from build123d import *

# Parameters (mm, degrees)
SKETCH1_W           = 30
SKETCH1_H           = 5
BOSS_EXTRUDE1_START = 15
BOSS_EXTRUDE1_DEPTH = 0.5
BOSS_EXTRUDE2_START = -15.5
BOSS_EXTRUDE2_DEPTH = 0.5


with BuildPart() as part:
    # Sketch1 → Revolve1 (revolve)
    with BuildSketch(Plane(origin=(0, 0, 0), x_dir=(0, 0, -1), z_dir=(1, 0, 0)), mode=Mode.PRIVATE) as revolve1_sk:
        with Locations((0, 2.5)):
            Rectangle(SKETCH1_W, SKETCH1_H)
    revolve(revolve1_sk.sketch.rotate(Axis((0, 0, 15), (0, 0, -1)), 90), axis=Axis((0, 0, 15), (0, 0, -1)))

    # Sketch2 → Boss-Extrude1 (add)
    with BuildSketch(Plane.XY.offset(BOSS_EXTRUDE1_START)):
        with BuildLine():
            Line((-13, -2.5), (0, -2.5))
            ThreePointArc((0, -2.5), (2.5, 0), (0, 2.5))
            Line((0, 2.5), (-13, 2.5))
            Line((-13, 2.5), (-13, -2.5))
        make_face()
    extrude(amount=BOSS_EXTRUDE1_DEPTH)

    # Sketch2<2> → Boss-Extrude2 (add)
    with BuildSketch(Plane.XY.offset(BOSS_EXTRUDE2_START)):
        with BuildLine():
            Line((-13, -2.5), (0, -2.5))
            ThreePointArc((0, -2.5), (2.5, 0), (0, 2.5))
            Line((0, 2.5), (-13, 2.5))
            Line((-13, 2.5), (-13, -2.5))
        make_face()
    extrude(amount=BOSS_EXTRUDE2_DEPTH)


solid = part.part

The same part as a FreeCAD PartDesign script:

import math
import FreeCAD as App
import Part
import Sketcher

V = App.Vector
Q = App.Units.Quantity


def add_polygon(sketch, points):
    """Adds a closed chain of lines whose ends are joined by coincident constraints."""
    first, n = sketch.GeometryCount, len(points)
    for a, b in zip(points, points[1:] + points[:1]):
        sketch.addGeometry(Part.LineSegment(App.Vector(*a, 0), App.Vector(*b, 0)), False)
    for i in range(n):
        sketch.addConstraint(Sketcher.Constraint("Coincident", first + i, 2, first + (i + 1) % n, 1))

doc = App.newDocument("Part")
body = doc.addObject("PartDesign::Body", "Body")

# Sketch on YZ plane
sketch1 = body.newObject("Sketcher::SketchObject", "Sketch")
sketch1.AttachmentSupport = (doc.getObject("YZ_Plane"), [""])
sketch1.MapMode = "FlatFace"
add_polygon(sketch1, [(5, 15), (0, 15), (0, -15), (5, -15)])  # lines 0-3
sketch1.addConstraint(Sketcher.Constraint("Horizontal", 0))
sketch1.addConstraint(Sketcher.Constraint("Vertical", 1))
sketch1.addConstraint(Sketcher.Constraint("Horizontal", 2))
sketch1.addConstraint(Sketcher.Constraint("Vertical", 3))
sketch1.addConstraint(Sketcher.Constraint("Symmetric", 0, 2, 1, 2, -1, 1))
sketch1.addConstraint(Sketcher.Constraint("DistanceX", 0, 2, 0, 1, Q("5 mm")))
sketch1.addConstraint(Sketcher.Constraint("DistanceY", 1, 2, 1, 1, Q("30 mm")))
revolution = body.newObject("PartDesign::Revolution", "Revolution")
revolution.Profile = sketch1
revolution.ReferenceAxis = (sketch1, ["V_Axis"])
revolution.Angle = 360

# Sketch on XY plane
sketch2 = body.newObject("Sketcher::SketchObject", "Sketch001")
sketch2.AttachmentSupport = (doc.getObject("XY_Plane"), [""])
sketch2.MapMode = "FlatFace"
sketch2.AttachmentOffset = App.Placement(V(0, 0, 15), App.Rotation())
sketch2.addGeometry(Part.LineSegment(V(-13, -2.5, 0), V(0, -2.5, 0)), False)
sketch2.addGeometry(Part.ArcOfCircle(Part.Circle(V(0, 0, 0), V(0, 0, 1), 2.5), math.radians(-90), math.radians(90)), False)
sketch2.addGeometry(Part.LineSegment(V(0, 2.5, 0), V(-13, 2.5, 0)), False)
sketch2.addGeometry(Part.LineSegment(V(-13, 2.5, 0), V(-13, -2.5, 0)), False)
sketch2.addConstraint(Sketcher.Constraint("Tangent", 0, 2, 1, 1))
sketch2.addConstraint(Sketcher.Constraint("Tangent", 1, 2, 2, 1))
sketch2.addConstraint(Sketcher.Constraint("Coincident", 2, 2, 3, 1))
sketch2.addConstraint(Sketcher.Constraint("Coincident", 3, 2, 0, 1))
sketch2.addConstraint(Sketcher.Constraint("Horizontal", 0))
sketch2.addConstraint(Sketcher.Constraint("Horizontal", 2))
sketch2.addConstraint(Sketcher.Constraint("Vertical", 3))
sketch2.addConstraint(Sketcher.Constraint("Coincident", 1, 3, -1, 1))
sketch2.addConstraint(Sketcher.Constraint("Radius", 1, Q("2.5 mm")))
sketch2.addConstraint(Sketcher.Constraint("DistanceX", 0, 1, 0, 2, Q("13 mm")))
pad1 = body.newObject("PartDesign::Pad", "Pad")
pad1.Profile = sketch2
pad1.Length = 0.5

# Sketch on XY plane
sketch3 = body.newObject("Sketcher::SketchObject", "Sketch002")
sketch3.AttachmentSupport = (doc.getObject("XY_Plane"), [""])
sketch3.MapMode = "FlatFace"
sketch3.AttachmentOffset = App.Placement(V(0, 0, -15.5), App.Rotation())
sketch3.addGeometry(Part.LineSegment(V(-13, -2.5, 0), V(0, -2.5, 0)), False)
sketch3.addGeometry(Part.ArcOfCircle(Part.Circle(V(0, 0, 0), V(0, 0, 1), 2.5), math.radians(-90), math.radians(90)), False)
sketch3.addGeometry(Part.LineSegment(V(0, 2.5, 0), V(-13, 2.5, 0)), False)
sketch3.addGeometry(Part.LineSegment(V(-13, 2.5, 0), V(-13, -2.5, 0)), False)
sketch3.addConstraint(Sketcher.Constraint("Tangent", 0, 2, 1, 1))
sketch3.addConstraint(Sketcher.Constraint("Tangent", 1, 2, 2, 1))
sketch3.addConstraint(Sketcher.Constraint("Coincident", 2, 2, 3, 1))
sketch3.addConstraint(Sketcher.Constraint("Coincident", 3, 2, 0, 1))
sketch3.addConstraint(Sketcher.Constraint("Horizontal", 0))
sketch3.addConstraint(Sketcher.Constraint("Horizontal", 2))
sketch3.addConstraint(Sketcher.Constraint("Vertical", 3))
sketch3.addConstraint(Sketcher.Constraint("Coincident", 1, 3, -1, 1))
sketch3.addConstraint(Sketcher.Constraint("Radius", 1, Q("2.5 mm")))
sketch3.addConstraint(Sketcher.Constraint("DistanceX", 0, 1, 0, 2, Q("13 mm")))
pad2 = body.newObject("PartDesign::Pad", "Pad001")
pad2.Profile = sketch3
pad2.Length = 0.5

doc.recompute()
